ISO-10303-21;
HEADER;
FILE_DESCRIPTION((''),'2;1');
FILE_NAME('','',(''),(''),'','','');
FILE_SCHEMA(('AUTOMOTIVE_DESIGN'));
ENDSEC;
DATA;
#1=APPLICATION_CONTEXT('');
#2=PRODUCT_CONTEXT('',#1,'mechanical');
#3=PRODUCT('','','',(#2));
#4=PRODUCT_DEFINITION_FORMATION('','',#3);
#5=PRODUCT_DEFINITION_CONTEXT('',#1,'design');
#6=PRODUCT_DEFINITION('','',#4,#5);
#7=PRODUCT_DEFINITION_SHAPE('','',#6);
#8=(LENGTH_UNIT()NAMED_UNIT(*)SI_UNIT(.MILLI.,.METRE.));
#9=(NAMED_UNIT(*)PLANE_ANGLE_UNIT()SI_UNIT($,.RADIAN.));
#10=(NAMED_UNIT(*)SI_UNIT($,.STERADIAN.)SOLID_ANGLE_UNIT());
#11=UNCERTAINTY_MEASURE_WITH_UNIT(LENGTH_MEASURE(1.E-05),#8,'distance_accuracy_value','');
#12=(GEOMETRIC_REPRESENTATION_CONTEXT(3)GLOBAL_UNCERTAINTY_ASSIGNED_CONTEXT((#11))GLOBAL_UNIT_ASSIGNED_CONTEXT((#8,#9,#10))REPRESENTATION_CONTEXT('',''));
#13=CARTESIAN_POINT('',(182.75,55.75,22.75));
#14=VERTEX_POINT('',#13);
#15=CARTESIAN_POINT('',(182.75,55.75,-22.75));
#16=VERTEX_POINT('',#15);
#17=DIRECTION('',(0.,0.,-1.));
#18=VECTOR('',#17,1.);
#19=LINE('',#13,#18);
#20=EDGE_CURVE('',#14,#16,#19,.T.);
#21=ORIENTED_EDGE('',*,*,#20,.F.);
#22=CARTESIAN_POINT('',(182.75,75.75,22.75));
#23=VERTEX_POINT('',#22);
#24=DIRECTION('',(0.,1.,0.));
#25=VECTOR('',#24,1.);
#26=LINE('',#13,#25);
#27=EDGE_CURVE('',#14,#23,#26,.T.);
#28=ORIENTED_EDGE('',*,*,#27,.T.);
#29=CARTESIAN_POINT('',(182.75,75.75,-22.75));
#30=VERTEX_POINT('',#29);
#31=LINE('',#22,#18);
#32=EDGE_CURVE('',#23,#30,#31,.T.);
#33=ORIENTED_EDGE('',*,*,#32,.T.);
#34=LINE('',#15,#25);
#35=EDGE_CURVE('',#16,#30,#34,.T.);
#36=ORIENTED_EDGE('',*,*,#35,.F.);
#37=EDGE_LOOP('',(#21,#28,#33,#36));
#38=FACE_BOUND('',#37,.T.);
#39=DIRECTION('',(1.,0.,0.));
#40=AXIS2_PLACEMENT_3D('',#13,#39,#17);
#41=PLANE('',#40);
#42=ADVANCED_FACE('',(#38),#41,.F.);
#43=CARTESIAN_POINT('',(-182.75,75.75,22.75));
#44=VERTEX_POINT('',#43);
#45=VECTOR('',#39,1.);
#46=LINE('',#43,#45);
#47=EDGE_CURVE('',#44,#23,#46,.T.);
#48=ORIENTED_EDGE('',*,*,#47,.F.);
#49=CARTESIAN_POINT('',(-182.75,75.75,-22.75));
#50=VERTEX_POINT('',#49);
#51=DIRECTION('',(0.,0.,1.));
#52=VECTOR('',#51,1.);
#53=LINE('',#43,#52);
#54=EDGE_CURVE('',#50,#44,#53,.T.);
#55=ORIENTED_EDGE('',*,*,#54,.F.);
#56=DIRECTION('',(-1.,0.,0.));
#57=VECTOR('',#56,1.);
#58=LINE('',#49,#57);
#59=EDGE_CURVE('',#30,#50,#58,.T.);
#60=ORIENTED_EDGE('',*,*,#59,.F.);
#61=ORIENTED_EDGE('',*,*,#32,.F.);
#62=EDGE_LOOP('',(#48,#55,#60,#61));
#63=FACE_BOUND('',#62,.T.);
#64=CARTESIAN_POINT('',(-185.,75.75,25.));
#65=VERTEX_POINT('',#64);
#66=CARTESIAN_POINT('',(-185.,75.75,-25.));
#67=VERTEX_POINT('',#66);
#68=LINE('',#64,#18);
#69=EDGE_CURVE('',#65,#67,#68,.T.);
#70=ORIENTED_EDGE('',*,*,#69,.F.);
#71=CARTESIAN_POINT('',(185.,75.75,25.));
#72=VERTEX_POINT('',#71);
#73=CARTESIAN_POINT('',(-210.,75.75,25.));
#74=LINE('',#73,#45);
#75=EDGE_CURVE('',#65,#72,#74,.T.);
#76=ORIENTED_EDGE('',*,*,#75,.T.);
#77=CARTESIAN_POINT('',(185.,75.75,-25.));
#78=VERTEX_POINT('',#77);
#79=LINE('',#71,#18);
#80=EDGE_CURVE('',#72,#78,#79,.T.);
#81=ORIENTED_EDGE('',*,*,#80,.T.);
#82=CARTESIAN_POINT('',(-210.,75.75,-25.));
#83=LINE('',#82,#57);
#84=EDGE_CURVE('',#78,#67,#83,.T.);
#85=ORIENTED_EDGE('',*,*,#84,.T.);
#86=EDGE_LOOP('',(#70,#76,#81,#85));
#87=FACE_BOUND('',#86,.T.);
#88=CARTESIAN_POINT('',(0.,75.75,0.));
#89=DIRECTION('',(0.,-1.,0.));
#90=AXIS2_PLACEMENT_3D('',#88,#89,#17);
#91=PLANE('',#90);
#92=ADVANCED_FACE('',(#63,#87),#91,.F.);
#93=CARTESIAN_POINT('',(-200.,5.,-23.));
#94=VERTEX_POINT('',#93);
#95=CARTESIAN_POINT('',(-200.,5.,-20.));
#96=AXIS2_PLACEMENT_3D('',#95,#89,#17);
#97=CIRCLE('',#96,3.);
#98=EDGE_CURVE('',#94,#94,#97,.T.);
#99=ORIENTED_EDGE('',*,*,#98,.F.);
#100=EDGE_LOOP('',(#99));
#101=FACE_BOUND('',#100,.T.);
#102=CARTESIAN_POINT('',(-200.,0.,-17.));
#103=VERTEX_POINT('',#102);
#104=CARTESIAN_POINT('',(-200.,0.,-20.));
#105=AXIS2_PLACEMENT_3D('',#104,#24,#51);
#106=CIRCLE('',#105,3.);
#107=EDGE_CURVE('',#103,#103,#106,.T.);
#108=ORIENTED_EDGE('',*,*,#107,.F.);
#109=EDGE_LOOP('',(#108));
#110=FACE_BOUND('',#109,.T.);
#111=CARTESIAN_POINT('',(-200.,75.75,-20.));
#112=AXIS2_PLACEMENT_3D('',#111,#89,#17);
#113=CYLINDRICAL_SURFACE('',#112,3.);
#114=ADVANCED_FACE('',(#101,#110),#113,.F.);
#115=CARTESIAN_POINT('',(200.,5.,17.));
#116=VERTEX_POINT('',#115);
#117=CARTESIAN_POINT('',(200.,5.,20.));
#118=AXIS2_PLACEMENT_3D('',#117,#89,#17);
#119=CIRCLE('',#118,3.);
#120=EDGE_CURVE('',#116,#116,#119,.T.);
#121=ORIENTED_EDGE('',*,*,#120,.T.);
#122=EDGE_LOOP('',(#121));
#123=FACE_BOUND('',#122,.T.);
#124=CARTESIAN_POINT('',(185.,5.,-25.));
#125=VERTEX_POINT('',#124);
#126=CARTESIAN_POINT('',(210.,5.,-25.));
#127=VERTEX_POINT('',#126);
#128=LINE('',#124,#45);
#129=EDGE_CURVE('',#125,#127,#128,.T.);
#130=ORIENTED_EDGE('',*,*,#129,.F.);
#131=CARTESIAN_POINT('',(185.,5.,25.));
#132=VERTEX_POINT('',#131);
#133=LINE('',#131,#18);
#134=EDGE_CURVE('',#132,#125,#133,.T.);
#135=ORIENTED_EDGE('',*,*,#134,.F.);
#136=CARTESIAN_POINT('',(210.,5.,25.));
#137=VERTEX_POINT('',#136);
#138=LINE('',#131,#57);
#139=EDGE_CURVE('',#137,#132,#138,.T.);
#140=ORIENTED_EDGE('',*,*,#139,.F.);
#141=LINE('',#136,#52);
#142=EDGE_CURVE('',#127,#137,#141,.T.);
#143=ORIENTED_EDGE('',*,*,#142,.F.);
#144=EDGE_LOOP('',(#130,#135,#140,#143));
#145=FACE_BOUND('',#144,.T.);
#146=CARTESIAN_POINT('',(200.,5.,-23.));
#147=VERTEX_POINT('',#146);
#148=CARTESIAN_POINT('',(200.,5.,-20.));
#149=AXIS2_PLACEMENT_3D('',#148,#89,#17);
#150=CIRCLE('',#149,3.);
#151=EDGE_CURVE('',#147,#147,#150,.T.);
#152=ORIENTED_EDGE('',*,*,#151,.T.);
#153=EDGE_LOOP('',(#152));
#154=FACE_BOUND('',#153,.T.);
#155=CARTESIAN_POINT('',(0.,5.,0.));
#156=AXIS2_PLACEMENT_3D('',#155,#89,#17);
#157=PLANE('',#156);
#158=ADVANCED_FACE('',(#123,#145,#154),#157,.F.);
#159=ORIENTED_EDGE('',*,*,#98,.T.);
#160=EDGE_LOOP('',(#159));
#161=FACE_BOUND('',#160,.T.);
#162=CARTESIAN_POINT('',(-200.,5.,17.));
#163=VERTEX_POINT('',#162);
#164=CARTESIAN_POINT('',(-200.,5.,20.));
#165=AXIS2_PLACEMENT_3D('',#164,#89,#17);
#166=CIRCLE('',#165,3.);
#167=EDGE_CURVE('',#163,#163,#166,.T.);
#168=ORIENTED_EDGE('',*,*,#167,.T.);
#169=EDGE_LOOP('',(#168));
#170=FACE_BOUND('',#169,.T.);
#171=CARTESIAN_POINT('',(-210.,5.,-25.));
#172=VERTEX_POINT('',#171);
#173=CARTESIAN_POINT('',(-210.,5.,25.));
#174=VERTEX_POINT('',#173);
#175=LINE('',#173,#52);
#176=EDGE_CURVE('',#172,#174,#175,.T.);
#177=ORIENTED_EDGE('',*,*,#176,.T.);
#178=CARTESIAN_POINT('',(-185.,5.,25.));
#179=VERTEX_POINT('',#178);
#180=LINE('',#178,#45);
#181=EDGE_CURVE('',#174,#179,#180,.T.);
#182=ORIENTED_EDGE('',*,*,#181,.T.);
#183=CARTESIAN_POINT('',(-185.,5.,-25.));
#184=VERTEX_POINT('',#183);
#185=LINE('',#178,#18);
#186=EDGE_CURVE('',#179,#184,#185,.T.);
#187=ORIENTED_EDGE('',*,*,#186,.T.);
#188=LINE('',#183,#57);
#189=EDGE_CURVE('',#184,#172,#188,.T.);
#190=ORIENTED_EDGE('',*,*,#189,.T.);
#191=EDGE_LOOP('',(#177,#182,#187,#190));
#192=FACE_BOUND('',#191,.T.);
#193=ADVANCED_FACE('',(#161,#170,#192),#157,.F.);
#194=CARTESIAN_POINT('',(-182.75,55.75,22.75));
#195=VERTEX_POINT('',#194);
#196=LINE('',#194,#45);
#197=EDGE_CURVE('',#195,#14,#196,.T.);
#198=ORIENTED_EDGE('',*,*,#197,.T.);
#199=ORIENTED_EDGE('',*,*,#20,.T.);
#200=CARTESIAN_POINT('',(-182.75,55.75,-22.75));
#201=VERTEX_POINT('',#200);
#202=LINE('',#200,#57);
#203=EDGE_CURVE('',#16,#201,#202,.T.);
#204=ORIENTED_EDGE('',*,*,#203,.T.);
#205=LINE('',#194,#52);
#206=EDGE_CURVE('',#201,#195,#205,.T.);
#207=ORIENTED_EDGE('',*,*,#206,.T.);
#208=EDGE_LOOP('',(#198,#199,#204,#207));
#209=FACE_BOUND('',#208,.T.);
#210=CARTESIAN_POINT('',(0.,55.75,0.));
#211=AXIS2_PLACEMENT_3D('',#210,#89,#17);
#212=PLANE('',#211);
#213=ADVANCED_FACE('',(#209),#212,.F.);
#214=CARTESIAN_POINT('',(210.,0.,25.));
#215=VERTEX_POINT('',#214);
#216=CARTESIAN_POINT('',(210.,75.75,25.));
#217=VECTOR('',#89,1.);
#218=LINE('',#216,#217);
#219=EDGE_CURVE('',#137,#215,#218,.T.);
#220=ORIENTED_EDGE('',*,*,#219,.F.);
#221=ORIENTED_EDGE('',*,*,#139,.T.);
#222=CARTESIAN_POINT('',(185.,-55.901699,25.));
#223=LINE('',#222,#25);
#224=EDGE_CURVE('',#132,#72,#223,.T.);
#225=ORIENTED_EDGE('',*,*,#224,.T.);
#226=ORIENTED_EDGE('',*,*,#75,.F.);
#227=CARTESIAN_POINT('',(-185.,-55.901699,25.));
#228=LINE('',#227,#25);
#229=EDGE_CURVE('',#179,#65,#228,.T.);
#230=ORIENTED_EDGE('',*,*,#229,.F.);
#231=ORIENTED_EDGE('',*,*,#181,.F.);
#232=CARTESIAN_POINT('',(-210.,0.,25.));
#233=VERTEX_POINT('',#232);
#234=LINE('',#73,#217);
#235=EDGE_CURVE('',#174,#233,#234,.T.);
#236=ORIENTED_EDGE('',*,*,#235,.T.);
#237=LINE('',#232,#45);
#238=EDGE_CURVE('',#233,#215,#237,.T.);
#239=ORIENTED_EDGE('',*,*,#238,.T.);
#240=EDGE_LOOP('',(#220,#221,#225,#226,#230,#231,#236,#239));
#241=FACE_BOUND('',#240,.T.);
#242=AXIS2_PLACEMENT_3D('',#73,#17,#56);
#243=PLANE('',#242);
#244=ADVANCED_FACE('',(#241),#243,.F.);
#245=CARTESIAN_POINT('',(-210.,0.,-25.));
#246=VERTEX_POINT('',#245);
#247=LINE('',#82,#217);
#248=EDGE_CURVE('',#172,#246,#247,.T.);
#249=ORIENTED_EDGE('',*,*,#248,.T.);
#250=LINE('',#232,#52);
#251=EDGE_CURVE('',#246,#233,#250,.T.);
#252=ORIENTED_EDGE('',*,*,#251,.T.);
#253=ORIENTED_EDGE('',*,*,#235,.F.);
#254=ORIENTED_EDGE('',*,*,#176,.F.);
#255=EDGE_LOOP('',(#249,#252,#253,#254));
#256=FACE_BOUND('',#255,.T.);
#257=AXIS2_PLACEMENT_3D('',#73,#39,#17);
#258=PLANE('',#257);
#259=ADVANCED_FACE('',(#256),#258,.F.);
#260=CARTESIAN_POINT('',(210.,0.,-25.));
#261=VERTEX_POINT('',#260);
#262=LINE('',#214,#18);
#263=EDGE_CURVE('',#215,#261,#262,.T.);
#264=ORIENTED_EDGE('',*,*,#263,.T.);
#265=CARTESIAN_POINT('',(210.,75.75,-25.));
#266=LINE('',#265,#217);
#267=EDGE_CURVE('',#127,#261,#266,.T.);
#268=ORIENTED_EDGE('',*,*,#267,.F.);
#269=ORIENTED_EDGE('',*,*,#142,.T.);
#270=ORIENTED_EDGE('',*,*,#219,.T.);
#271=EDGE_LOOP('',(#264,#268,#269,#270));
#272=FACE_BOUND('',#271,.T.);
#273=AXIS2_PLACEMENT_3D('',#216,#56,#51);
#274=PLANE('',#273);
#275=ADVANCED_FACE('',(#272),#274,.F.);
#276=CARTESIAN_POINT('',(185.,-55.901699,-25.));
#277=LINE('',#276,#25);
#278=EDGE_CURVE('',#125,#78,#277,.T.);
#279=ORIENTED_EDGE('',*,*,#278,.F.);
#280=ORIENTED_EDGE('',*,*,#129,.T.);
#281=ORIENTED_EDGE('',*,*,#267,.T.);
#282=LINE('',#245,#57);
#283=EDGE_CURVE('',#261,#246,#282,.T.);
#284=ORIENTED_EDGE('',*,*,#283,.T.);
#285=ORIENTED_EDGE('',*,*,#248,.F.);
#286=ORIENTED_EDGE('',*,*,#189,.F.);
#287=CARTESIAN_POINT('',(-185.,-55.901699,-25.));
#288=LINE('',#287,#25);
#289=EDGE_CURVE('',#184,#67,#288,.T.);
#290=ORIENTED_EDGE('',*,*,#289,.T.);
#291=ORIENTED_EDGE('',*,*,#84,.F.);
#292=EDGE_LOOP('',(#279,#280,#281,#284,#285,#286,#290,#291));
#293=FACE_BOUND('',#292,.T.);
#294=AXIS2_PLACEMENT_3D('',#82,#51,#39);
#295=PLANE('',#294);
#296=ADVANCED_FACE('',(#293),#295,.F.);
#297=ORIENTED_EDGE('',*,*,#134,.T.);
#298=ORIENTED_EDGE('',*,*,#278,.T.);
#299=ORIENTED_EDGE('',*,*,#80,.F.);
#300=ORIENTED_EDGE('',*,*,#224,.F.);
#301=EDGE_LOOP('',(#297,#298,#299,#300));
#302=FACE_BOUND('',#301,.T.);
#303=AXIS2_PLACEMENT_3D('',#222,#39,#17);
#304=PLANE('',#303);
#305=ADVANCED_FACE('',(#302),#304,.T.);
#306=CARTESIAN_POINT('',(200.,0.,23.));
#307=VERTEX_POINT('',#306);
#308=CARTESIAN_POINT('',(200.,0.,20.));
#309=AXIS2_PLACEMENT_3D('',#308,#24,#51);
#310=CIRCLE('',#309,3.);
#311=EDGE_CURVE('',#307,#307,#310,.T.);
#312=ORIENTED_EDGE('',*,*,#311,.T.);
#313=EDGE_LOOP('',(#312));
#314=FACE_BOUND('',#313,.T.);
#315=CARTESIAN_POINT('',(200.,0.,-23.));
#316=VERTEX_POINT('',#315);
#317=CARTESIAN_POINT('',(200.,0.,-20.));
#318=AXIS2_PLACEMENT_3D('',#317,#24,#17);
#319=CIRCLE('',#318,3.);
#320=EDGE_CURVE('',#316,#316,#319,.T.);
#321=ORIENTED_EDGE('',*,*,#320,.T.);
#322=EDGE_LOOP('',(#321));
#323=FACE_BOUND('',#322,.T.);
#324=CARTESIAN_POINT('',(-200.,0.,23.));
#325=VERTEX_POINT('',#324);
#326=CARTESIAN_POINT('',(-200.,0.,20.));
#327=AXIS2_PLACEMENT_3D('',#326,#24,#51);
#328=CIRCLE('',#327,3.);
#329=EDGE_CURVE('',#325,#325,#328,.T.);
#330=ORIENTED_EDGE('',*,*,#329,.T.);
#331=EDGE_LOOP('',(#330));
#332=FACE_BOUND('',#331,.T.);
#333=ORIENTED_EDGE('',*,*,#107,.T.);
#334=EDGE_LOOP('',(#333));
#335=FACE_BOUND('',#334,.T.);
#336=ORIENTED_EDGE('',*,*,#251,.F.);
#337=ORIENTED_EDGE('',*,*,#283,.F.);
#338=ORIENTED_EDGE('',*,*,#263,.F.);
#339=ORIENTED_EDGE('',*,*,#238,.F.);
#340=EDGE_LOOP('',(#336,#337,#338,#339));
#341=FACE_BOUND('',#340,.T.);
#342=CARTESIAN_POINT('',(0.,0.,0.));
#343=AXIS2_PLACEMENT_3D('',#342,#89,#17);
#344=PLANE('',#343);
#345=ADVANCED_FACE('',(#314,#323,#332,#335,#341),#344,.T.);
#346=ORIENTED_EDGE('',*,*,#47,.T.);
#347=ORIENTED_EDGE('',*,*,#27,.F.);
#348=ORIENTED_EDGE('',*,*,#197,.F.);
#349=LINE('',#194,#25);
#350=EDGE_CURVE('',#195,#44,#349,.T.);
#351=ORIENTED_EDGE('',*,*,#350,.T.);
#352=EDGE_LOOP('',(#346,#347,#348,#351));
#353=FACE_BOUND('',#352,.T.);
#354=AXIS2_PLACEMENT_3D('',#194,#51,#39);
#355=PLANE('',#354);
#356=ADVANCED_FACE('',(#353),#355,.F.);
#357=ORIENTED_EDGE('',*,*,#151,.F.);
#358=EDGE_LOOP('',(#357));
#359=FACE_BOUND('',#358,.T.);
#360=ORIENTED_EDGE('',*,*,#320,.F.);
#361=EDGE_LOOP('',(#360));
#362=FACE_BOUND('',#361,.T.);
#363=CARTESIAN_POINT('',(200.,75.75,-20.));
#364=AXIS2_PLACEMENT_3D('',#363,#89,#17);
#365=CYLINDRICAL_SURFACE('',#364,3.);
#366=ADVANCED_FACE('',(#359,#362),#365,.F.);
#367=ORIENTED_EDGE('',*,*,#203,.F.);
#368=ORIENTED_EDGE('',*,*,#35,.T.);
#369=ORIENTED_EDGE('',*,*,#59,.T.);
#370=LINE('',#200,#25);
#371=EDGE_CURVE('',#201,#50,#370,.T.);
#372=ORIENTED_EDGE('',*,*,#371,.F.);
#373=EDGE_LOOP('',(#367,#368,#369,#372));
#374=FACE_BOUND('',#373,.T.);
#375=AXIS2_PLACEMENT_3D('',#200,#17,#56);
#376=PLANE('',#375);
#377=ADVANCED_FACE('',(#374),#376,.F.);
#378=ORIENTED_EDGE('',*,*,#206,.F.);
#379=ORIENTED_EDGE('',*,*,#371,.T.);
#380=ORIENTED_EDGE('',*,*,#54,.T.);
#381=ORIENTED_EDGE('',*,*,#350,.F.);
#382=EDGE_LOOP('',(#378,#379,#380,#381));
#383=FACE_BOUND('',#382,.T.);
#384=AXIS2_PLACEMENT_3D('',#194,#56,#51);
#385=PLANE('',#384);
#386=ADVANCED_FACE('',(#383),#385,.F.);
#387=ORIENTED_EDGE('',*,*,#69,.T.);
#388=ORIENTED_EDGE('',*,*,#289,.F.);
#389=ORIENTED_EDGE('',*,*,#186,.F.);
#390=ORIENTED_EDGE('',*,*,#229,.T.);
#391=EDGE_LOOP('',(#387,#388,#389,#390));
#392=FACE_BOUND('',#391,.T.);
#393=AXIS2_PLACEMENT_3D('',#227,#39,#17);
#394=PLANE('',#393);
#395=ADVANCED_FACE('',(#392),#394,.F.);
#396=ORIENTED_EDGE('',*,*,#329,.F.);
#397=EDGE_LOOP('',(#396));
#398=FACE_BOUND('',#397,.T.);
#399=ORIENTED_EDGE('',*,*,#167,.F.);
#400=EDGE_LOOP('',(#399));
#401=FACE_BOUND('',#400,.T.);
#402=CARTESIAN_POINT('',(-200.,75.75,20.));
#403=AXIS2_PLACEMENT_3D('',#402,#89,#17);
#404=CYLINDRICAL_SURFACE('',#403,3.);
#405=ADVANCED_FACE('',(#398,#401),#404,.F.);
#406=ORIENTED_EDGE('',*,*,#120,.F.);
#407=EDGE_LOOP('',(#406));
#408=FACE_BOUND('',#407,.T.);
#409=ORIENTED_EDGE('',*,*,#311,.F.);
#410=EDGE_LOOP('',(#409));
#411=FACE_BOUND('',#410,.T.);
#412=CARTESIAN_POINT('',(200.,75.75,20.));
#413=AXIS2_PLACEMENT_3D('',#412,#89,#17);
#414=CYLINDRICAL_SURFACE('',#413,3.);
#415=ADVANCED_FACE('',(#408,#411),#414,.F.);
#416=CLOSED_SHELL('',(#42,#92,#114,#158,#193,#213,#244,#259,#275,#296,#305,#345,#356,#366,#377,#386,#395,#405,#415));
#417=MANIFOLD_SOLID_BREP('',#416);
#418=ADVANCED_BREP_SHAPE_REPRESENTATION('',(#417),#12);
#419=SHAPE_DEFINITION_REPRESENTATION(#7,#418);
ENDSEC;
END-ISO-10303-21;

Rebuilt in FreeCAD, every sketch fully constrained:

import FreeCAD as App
import Part
import Sketcher

doc = App.newDocument("Part")
body = doc.addObject("PartDesign::Body", "Body")

sketch1 = body.newObject("Sketcher::SketchObject", "Sketch")
sketch1.AttachmentSupport = (doc.getObject("XZ_Plane"), [""])
sketch1.MapMode = "FlatFace"
sketch1.addGeometry([
    Part.LineSegment(App.Vector(-210, -25, 0), App.Vector(-210, 25, 0)),
    Part.LineSegment(App.Vector(-210, 25, 0), App.Vector(210, 25, 0)),
    Part.LineSegment(App.Vector(210, 25, 0), App.Vector(210, -25, 0)),
    Part.LineSegment(App.Vector(210, -25, 0), App.Vector(-210, -25, 0)),
    Part.Circle(App.Vector(-200, 20, 0), App.Vector(0, 0, 1), 3),
    Part.Circle(App.Vector(200, 20, 0), App.Vector(0, 0, 1), 3),
    Part.Circle(App.Vector(-200, -20, 0), App.Vector(0, 0, 1), 3),
    Part.Circle(App.Vector(200, -20, 0), App.Vector(0, 0, 1), 3),
], False)
sketch1.addConstraint([
    Sketcher.Constraint("Coincident", 0, 2, 1, 1),
    Sketcher.Constraint("Coincident", 1, 2, 2, 1),
    Sketcher.Constraint("Coincident", 2, 2, 3, 1),
    Sketcher.Constraint("Coincident", 3, 2, 0, 1),
    Sketcher.Constraint("Vertical", 0),
    Sketcher.Constraint("Horizontal", 1),
    Sketcher.Constraint("Vertical", 2),
    Sketcher.Constraint("Horizontal", 3),
    Sketcher.Constraint("Equal", 4, 5),
    Sketcher.Constraint("Equal", 5, 6),
    Sketcher.Constraint("Equal", 6, 7),
    Sketcher.Constraint("Symmetric", 5, 3, 6, 3, -1, 1),
    Sketcher.Constraint("Symmetric", 4, 3, 7, 3, -1, 1),
    Sketcher.Constraint("Symmetric", 0, 2, 2, 2, -1, 1),
    Sketcher.Constraint("Symmetric", 4, 3, 5, 3, -2),
    Sketcher.Constraint("Diameter", 4, 6.0),
    Sketcher.Constraint("DistanceX", 1, 1, 1, 2, 420.0),
    Sketcher.Constraint("DistanceY", 0, 1, 0, 2, 50.0),
    Sketcher.Constraint("DistanceX", 4, 3, -1, 1, 200.0),
    Sketcher.Constraint("DistanceY", -1, 1, 4, 3, 20.0),
])
pad1 = body.newObject("PartDesign::Pad", "Pad")
pad1.Profile = sketch1
pad1.Length = 75.75
pad1.Reversed = True

sketch2 = body.newObject("Sketcher::SketchObject", "Sketch001")
sketch2.AttachmentSupport = (doc.getObject("XZ_Plane"), [""])
sketch2.MapMode = "FlatFace"
sketch2.AttachmentOffset = App.Placement(App.Vector(0, 0, -75.75), App.Rotation())
sketch2.addGeometry([
    Part.LineSegment(App.Vector(-182.75, -22.75, 0), App.Vector(-182.75, 22.75, 0)),
    Part.LineSegment(App.Vector(-182.75, 22.75, 0), App.Vector(182.75, 22.75, 0)),
    Part.LineSegment(App.Vector(182.75, 22.75, 0), App.Vector(182.75, -22.75, 0)),
    Part.LineSegment(App.Vector(182.75, -22.75, 0), App.Vector(-182.75, -22.75, 0)),
], False)
sketch2.addConstraint([
    Sketcher.Constraint("Coincident", 0, 2, 1, 1),
    Sketcher.Constraint("Coincident", 1, 2, 2, 1),
    Sketcher.Constraint("Coincident", 2, 2, 3, 1),
    Sketcher.Constraint("Coincident", 3, 2, 0, 1),
    Sketcher.Constraint("Vertical", 0),
    Sketcher.Constraint("Horizontal", 1),
    Sketcher.Constraint("Vertical", 2),
    Sketcher.Constraint("Horizontal", 3),
    Sketcher.Constraint("Symmetric", 0, 2, 2, 2, -1, 1),
    Sketcher.Constraint("DistanceX", 1, 1, 1, 2, 365.5),
    Sketcher.Constraint("DistanceY", 0, 1, 0, 2, 45.5),
])
pocket1 = body.newObject("PartDesign::Pocket", "Pocket")
pocket1.Profile = sketch2
pocket1.Length = 20
pocket1.Reversed = True

sketch3 = body.newObject("Sketcher::SketchObject", "Sketch002")
sketch3.AttachmentSupport = (doc.getObject("XZ_Plane"), [""])
sketch3.MapMode = "FlatFace"
sketch3.AttachmentOffset = App.Placement(App.Vector(0, 0, -75.75), App.Rotation())
sketch3.addGeometry([
    Part.LineSegment(App.Vector(-210, -25, 0), App.Vector(-210, 25, 0)),
    Part.LineSegment(App.Vector(-210, 25, 0), App.Vector(-185, 25, 0)),
    Part.LineSegment(App.Vector(-185, 25, 0), App.Vector(-185, -25, 0)),
    Part.LineSegment(App.Vector(-185, -25, 0), App.Vector(-210, -25, 0)),
], False)
sketch3.addConstraint([
    Sketcher.Constraint("Coincident", 0, 2, 1, 1),
    Sketcher.Constraint("Coincident", 1, 2, 2, 1),
    Sketcher.Constraint("Coincident", 2, 2, 3, 1),
    Sketcher.Constraint("Coincident", 3, 2, 0, 1),
    Sketcher.Constraint("Vertical", 0),
    Sketcher.Constraint("Horizontal", 1),
    Sketcher.Constraint("Vertical", 2),
    Sketcher.Constraint("Horizontal", 3),
    Sketcher.Constraint("DistanceX", 1, 1, 1, 2, 25.0),
    Sketcher.Constraint("DistanceY", 0, 1, 0, 2, 50.0),
    Sketcher.Constraint("DistanceX", 0, 2, -1, 1, 210.0),
    Sketcher.Constraint("DistanceY", -1, 1, 0, 2, 25.0),
])
pocket2 = body.newObject("PartDesign::Pocket", "Pocket001")
pocket2.Profile = sketch3
pocket2.Length = 70.75
pocket2.Reversed = True
doc.recompute()

mirrored = body.newObject("PartDesign::Mirrored", "Mirrored")
mirrored.Originals = [pocket2]
mirrored.MirrorPlane = (doc.getObject("YZ_Plane"), [""])
body.Tip = mirrored

doc.recompute()
